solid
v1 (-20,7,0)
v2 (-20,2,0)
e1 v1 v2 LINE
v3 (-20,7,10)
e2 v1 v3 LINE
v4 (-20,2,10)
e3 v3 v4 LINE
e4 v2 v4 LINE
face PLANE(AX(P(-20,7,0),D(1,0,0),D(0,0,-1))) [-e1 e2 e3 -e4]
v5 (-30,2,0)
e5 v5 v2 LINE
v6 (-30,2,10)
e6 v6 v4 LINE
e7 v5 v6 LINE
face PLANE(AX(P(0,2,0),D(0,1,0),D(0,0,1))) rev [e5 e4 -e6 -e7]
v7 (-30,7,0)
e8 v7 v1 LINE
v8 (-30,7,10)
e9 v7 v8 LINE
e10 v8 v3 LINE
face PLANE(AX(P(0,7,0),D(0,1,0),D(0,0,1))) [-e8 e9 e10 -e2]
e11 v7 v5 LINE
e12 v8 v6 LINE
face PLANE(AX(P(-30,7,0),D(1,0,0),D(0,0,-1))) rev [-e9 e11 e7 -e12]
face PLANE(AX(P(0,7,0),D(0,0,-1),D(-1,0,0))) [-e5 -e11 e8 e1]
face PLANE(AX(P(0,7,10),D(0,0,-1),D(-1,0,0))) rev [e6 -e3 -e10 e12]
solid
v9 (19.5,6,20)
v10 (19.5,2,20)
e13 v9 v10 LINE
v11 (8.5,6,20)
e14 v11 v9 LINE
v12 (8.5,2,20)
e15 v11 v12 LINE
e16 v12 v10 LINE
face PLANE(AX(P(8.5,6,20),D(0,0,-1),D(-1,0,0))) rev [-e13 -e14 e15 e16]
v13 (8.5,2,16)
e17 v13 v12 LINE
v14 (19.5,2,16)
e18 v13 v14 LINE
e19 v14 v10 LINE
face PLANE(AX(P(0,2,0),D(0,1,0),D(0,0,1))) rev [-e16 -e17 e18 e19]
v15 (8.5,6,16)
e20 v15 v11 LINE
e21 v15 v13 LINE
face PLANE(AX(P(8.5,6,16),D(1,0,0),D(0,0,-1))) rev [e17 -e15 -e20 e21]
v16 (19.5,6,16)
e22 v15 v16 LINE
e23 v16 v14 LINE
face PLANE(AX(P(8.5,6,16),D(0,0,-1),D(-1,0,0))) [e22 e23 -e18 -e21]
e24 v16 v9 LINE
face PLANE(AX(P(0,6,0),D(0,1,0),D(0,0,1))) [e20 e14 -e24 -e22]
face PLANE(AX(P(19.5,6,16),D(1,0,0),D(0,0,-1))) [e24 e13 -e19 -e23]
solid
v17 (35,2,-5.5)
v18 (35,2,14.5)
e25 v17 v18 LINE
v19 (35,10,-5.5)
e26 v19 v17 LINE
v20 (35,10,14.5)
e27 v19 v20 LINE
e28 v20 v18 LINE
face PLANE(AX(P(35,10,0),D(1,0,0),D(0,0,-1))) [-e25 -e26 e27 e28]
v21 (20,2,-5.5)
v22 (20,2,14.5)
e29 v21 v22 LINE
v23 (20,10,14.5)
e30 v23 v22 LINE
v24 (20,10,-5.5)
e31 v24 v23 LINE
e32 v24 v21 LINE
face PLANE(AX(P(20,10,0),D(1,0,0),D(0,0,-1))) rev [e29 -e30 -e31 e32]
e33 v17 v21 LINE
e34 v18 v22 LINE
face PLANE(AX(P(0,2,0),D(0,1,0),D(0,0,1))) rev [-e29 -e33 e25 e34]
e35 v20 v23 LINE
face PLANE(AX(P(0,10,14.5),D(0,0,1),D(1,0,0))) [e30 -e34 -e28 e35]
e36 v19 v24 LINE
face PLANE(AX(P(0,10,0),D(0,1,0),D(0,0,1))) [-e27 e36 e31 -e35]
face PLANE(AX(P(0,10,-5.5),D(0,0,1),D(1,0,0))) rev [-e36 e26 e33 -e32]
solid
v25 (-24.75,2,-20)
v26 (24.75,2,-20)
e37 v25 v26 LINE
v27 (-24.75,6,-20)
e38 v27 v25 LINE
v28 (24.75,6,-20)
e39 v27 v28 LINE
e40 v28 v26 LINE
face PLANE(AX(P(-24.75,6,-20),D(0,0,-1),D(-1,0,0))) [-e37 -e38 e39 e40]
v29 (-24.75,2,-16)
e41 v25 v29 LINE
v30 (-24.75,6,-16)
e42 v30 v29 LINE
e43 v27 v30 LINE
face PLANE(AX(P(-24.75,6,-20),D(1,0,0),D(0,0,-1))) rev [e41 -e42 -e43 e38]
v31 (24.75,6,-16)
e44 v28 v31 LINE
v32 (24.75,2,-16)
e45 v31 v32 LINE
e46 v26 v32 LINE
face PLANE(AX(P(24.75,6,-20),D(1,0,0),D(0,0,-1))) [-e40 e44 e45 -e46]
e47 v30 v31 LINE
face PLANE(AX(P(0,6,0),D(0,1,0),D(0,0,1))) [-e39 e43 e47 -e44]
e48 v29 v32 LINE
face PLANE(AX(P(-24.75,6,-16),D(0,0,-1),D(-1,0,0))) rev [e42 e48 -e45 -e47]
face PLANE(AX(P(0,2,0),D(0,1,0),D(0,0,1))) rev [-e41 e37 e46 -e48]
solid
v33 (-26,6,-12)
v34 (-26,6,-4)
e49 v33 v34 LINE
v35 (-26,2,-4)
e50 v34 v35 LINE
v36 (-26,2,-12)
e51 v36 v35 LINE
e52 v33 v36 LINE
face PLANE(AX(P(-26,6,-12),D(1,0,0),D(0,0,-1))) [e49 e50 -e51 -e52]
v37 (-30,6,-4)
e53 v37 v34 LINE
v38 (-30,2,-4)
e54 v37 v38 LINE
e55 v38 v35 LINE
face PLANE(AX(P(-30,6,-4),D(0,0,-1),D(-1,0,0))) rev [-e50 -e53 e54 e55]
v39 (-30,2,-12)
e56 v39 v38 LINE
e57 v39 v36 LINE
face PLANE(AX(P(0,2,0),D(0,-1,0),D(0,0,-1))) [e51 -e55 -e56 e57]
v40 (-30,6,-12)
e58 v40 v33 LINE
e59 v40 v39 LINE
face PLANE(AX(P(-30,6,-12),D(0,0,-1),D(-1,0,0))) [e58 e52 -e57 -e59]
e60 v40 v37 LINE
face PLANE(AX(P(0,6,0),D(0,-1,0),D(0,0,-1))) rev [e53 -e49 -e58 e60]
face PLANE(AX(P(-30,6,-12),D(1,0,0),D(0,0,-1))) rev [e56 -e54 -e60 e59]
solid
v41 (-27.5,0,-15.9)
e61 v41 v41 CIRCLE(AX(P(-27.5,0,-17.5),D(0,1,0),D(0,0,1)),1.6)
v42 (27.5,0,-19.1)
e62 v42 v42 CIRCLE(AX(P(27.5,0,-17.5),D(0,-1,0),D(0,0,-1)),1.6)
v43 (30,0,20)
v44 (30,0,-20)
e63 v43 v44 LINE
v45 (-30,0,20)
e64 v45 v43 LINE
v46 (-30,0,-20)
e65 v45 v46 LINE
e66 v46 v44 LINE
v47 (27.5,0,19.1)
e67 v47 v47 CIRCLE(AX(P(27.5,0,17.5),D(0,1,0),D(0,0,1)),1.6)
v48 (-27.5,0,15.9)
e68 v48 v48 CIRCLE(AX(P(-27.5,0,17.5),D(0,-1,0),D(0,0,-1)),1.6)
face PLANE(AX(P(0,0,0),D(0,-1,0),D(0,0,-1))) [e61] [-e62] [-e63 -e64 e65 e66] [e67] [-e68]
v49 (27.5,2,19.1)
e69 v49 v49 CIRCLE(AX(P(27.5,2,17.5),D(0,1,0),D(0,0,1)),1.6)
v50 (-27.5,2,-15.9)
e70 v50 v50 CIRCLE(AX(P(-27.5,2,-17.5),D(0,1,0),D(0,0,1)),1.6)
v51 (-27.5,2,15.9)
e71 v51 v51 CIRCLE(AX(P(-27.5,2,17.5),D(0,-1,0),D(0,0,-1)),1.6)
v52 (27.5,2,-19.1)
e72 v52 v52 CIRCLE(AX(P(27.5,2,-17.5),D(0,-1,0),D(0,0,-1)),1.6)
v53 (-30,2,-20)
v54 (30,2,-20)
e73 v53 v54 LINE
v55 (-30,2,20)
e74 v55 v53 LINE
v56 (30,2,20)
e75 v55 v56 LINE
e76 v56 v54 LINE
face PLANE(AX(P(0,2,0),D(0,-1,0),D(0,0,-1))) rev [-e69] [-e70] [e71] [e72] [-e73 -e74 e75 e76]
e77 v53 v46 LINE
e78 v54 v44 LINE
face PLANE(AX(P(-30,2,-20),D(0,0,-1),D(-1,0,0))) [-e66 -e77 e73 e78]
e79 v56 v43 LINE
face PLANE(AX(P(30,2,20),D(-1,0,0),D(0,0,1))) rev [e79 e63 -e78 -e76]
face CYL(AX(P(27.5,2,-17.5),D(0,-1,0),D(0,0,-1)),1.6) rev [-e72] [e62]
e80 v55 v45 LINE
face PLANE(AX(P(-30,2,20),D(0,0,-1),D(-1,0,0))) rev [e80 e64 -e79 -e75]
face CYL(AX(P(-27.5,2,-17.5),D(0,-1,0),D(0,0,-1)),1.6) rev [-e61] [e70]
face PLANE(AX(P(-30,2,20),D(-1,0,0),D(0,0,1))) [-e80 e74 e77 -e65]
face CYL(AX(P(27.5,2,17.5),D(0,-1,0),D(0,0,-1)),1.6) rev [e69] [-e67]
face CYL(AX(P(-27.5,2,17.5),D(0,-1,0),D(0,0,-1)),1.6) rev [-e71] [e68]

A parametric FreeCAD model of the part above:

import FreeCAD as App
import Part
import Sketcher

doc = App.newDocument("Part")
body = doc.addObject("PartDesign::Body", "Body")

# Sketch on XZ plane
sketch1 = body.newObject("Sketcher::SketchObject", "Sketch")
sketch1.AttachmentSupport = (doc.getObject("XZ_Plane"), [""])
sketch1.MapMode = "FlatFace"
sketch1.addGeometry(Part.LineSegment(App.Vector(-30, -20, 0), App.Vector(-30, 20, 0)), False)
sketch1.addGeometry(Part.LineSegment(App.Vector(-30, 20, 0), App.Vector(30, 20, 0)), False)
sketch1.addGeometry(Part.LineSegment(App.Vector(30, 20, 0), App.Vector(30, -20, 0)), False)
sketch1.addGeometry(Part.LineSegment(App.Vector(30, -20, 0), App.Vector(-30, -20, 0)), False)
sketch1.addGeometry(Part.Circle(App.Vector(-27.5, 17.5, 0), App.Vector(0, 0, 1), 1.6), False)
sketch1.addGeometry(Part.Circle(App.Vector(27.5, 17.5, 0), App.Vector(0, 0, 1), 1.6), False)
sketch1.addGeometry(Part.Circle(App.Vector(-27.5, -17.5, 0), App.Vector(0, 0, 1), 1.6), False)
sketch1.addGeometry(Part.Circle(App.Vector(27.5, -17.5, 0), App.Vector(0, 0, 1), 1.6), False)
sketch1.addConstraint(Sketcher.Constraint("Coincident", 0, 2, 1, 1))
sketch1.addConstraint(Sketcher.Constraint("Coincident", 1, 2, 2, 1))
sketch1.addConstraint(Sketcher.Constraint("Coincident", 2, 2, 3, 1))
sketch1.addConstraint(Sketcher.Constraint("Coincident", 3, 2, 0, 1))
sketch1.addConstraint(Sketcher.Constraint("Vertical", 0))
sketch1.addConstraint(Sketcher.Constraint("Horizontal", 1))
sketch1.addConstraint(Sketcher.Constraint("Vertical", 2))
sketch1.addConstraint(Sketcher.Constraint("Horizontal", 3))
sketch1.addConstraint(Sketcher.Constraint("Equal", 4, 5))
sketch1.addConstraint(Sketcher.Constraint("Equal", 5, 6))
sketch1.addConstraint(Sketcher.Constraint("Equal", 6, 7))
sketch1.addConstraint(Sketcher.Constraint("Symmetric", 5, 3, 6, 3, -1, 1))
sketch1.addConstraint(Sketcher.Constraint("Symmetric", 4, 3, 7, 3, -1, 1))
sketch1.addConstraint(Sketcher.Constraint("Symmetric", 0, 2, 2, 2, -1, 1))
sketch1.addConstraint(Sketcher.Constraint("Symmetric", 4, 3, 5, 3, -2))
sketch1.addConstraint(Sketcher.Constraint("Diameter", 4, 3.2))
sketch1.addConstraint(Sketcher.Constraint("DistanceX", 1, 1, 1, 2, 60.0))
sketch1.addConstraint(Sketcher.Constraint("DistanceY", 0, 1, 0, 2, 40.0))
sketch1.addConstraint(Sketcher.Constraint("DistanceX", 4, 3, 5, 3, 55.0))
sketch1.addConstraint(Sketcher.Constraint("DistanceY", 6, 3, 4, 3, 35.0))
pad1 = body.newObject("PartDesign::Pad", "Pad")
pad1.Profile = sketch1
pad1.Length = 2
pad1.Reversed = True
body2 = doc.addObject("PartDesign::Body", "Body001")

# Sketch on XZ plane
sketch2 = body2.newObject("Sketcher::SketchObject", "Sketch001")
sketch2.AttachmentSupport = (doc.getObject("XZ_Plane001"), [""])
sketch2.MapMode = "FlatFace"
sketch2.AttachmentOffset = App.Placement(App.Vector(0, 0, -2), App.Rotation())
sketch2.addGeometry(Part.LineSegment(App.Vector(-24.75, -20, 0), App.Vector(-24.75, -16, 0)), False)
sketch2.addGeometry(Part.LineSegment(App.Vector(-24.75, -16, 0), App.Vector(24.75, -16, 0)), False)
sketch2.addGeometry(Part.LineSegment(App.Vector(24.75, -16, 0), App.Vector(24.75, -20, 0)), False)
sketch2.addGeometry(Part.LineSegment(App.Vector(24.75, -20, 0), App.Vector(-24.75, -20, 0)), False)
sketch2.addConstraint(Sketcher.Constraint("Coincident", 0, 2, 1, 1))
sketch2.addConstraint(Sketcher.Constraint("Coincident", 1, 2, 2, 1))
sketch2.addConstraint(Sketcher.Constraint("Coincident", 2, 2, 3, 1))
sketch2.addConstraint(Sketcher.Constraint("Coincident", 3, 2, 0, 1))
sketch2.addConstraint(Sketcher.Constraint("Vertical", 0))
sketch2.addConstraint(Sketcher.Constraint("Horizontal", 1))
sketch2.addConstraint(Sketcher.Constraint("Vertical", 2))
sketch2.addConstraint(Sketcher.Constraint("Horizontal", 3))
sketch2.addConstraint(Sketcher.Constraint("DistanceY", 0, 1, 0, 2, 4.0))
sketch2.addConstraint(Sketcher.Constraint("DistanceX", 1, 1, 1, 2, 49.5))
sketch2.addConstraint(Sketcher.Constraint("DistanceY", 0, 2, -1, 1, 16.0))
sketch2.addConstraint(Sketcher.Constraint("DistanceX", 0, 2, -1, 1, 24.75))
pad2 = body2.newObject("PartDesign::Pad", "Pad001")
pad2.Profile = sketch2
pad2.Length = 4
pad2.Reversed = True
body3 = doc.addObject("PartDesign::Body", "Body002")

# Sketch on XZ plane
sketch3 = body3.newObject("Sketcher::SketchObject", "Sketch002")
sketch3.AttachmentSupport = (doc.getObject("XZ_Plane002"), [""])
sketch3.MapMode = "FlatFace"
sketch3.AttachmentOffset = App.Placement(App.Vector(0, 0, -2), App.Rotation())
sketch3.addGeometry(Part.LineSegment(App.Vector(-30, -12, 0), App.Vector(-30, -4, 0)), False)
sketch3.addGeometry(Part.LineSegment(App.Vector(-30, -4, 0), App.Vector(-26, -4, 0)), False)
sketch3.addGeometry(Part.LineSegment(App.Vector(-26, -4, 0), App.Vector(-26, -12, 0)), False)
sketch3.addGeometry(Part.LineSegment(App.Vector(-26, -12, 0), App.Vector(-30, -12, 0)), False)
sketch3.addConstraint(Sketcher.Constraint("Coincident", 0, 2, 1, 1))
sketch3.addConstraint(Sketcher.Constraint("Coincident", 1, 2, 2, 1))
sketch3.addConstraint(Sketcher.Constraint("Coincident", 2, 2, 3, 1))
sketch3.addConstraint(Sketcher.Constraint("Coincident", 3, 2, 0, 1))
sketch3.addConstraint(Sketcher.Constraint("Vertical", 0))
sketch3.addConstraint(Sketcher.Constraint("Horizontal", 1))
sketch3.addConstraint(Sketcher.Constraint("Vertical", 2))
sketch3.addConstraint(Sketcher.Constraint("Horizontal", 3))
sketch3.addConstraint(Sketcher.Constraint("DistanceX", 1, 1, 1, 2, 4.0))
sketch3.addConstraint(Sketcher.Constraint("DistanceY", 0, 1, 0, 2, 8.0))
sketch3.addConstraint(Sketcher.Constraint("DistanceX", 0, 2, -1, 1, 30.0))
sketch3.addConstraint(Sketcher.Constraint("DistanceY", 0, 2, -1, 1, 4.0))
pad3 = body3.newObject("PartDesign::Pad", "Pad002")
pad3.Profile = sketch3
pad3.Length = 4
pad3.Reversed = True
body4 = doc.addObject("PartDesign::Body", "Body003")

# Sketch on XZ plane
sketch4 = body4.newObject("Sketcher::SketchObject", "Sketch003")
sketch4.AttachmentSupport = (doc.getObject("XZ_Plane003"), [""])
sketch4.MapMode = "FlatFace"
sketch4.AttachmentOffset = App.Placement(App.Vector(0, 0, -2), App.Rotation())
sketch4.addGeometry(Part.LineSegment(App.Vector(8.5, 16, 0), App.Vector(8.5, 20, 0)), False)
sketch4.addGeometry(Part.LineSegment(App.Vector(8.5, 20, 0), App.Vector(19.5, 20, 0)), False)
sketch4.addGeometry(Part.LineSegment(App.Vector(19.5, 20, 0), App.Vector(19.5, 16, 0)), False)
sketch4.addGeometry(Part.LineSegment(App.Vector(19.5, 16, 0), App.Vector(8.5, 16, 0)), False)
sketch4.addConstraint(Sketcher.Constraint("Coincident", 0, 2, 1, 1))
sketch4.addConstraint(Sketcher.Constraint("Coincident", 1, 2, 2, 1))
sketch4.addConstraint(Sketcher.Constraint("Coincident", 2, 2, 3, 1))
sketch4.addConstraint(Sketcher.Constraint("Coincident", 3, 2, 0, 1))
sketch4.addConstraint(Sketcher.Constraint("Vertical", 0))
sketch4.addConstraint(Sketcher.Constraint("Horizontal", 1))
sketch4.addConstraint(Sketcher.Constraint("Vertical", 2))
sketch4.addConstraint(Sketcher.Constraint("Horizontal", 3))
sketch4.addConstraint(Sketcher.Constraint("DistanceX", 1, 1, 1, 2, 11.0))
sketch4.addConstraint(Sketcher.Constraint("DistanceY", 0, 1, 0, 2, 4.0))
sketch4.addConstraint(Sketcher.Constraint("DistanceY", -1, 1, 0, 2, 20.0))
sketch4.addConstraint(Sketcher.Constraint("DistanceX", -1, 1, 0, 2, 8.5))
pad4 = body4.newObject("PartDesign::Pad", "Pad003")
pad4.Profile = sketch4
pad4.Length = 4
pad4.Reversed = True
body5 = doc.addObject("PartDesign::Body", "Body004")

# Sketch on XZ plane
sketch5 = body5.newObject("Sketcher::SketchObject", "Sketch004")
sketch5.AttachmentSupport = (doc.getObject("XZ_Plane004"), [""])
sketch5.MapMode = "FlatFace"
sketch5.AttachmentOffset = App.Placement(App.Vector(0, 0, -2), App.Rotation())
sketch5.addGeometry(Part.LineSegment(App.Vector(-30, 0, 0), App.Vector(-30, 10, 0)), False)
sketch5.addGeometry(Part.LineSegment(App.Vector(-30, 10, 0), App.Vector(-20, 10, 0)), False)
sketch5.addGeometry(Part.LineSegment(App.Vector(-20, 10, 0), App.Vector(-20, 0, 0)), False)
sketch5.addGeometry(Part.LineSegment(App.Vector(-20, 0, 0), App.Vector(-30, 0, 0)), False)
sketch5.addConstraint(Sketcher.Constraint("Coincident", 0, 2, 1, 1))
sketch5.addConstraint(Sketcher.Constraint("Coincident", 1, 2, 2, 1))
sketch5.addConstraint(Sketcher.Constraint("Coincident", 2, 2, 3, 1))
sketch5.addConstraint(Sketcher.Constraint("Coincident", 3, 2, 0, 1))
sketch5.addConstraint(Sketcher.Constraint("Vertical", 0))
sketch5.addConstraint(Sketcher.Constraint("Horizontal", 1))
sketch5.addConstraint(Sketcher.Constraint("Vertical", 2))
sketch5.addConstraint(Sketcher.Constraint("Horizontal", 3))
sketch5.addConstraint(Sketcher.Constraint("PointOnObject", 2, 2, -1))
sketch5.addConstraint(Sketcher.Constraint("Equal", 3, 0))
sketch5.addConstraint(Sketcher.Constraint("DistanceX", 1, 1, 1, 2, 10.0))
sketch5.addConstraint(Sketcher.Constraint("DistanceX", 0, 2, -1, 1, 30.0))
pad5 = body5.newObject("PartDesign::Pad", "Pad004")
pad5.Profile = sketch5
pad5.Length = 5
pad5.Reversed = True
body6 = doc.addObject("PartDesign::Body", "Body005")

# Sketch on XZ plane
sketch6 = body6.newObject("Sketcher::SketchObject", "Sketch005")
sketch6.AttachmentSupport = (doc.getObject("XZ_Plane005"), [""])
sketch6.MapMode = "FlatFace"
sketch6.AttachmentOffset = App.Placement(App.Vector(0, 0, -2), App.Rotation())
sketch6.addGeometry(Part.LineSegment(App.Vector(35, 14.5, 0), App.Vector(35, -5.5, 0)), False)
sketch6.addGeometry(Part.LineSegment(App.Vector(35, -5.5, 0), App.Vector(20, -5.5, 0)), False)
sketch6.addGeometry(Part.LineSegment(App.Vector(20, -5.5, 0), App.Vector(20, 14.5, 0)), False)
sketch6.addGeometry(Part.LineSegment(App.Vector(20, 14.5, 0), App.Vector(35, 14.5, 0)), False)
sketch6.addConstraint(Sketcher.Constraint("Coincident", 0, 2, 1, 1))
sketch6.addConstraint(Sketcher.Constraint("Coincident", 1, 2, 2, 1))
sketch6.addConstraint(Sketcher.Constraint("Coincident", 2, 2, 3, 1))
sketch6.addConstraint(Sketcher.Constraint("Coincident", 3, 2, 0, 1))
sketch6.addConstraint(Sketcher.Constraint("Vertical", 0))
sketch6.addConstraint(Sketcher.Constraint("Horizontal", 1))
sketch6.addConstraint(Sketcher.Constraint("Vertical", 2))
sketch6.addConstraint(Sketcher.Constraint("Horizontal", 3))
sketch6.addConstraint(Sketcher.Constraint("DistanceX", 1, 2, 1, 1, 15.0))
sketch6.addConstraint(Sketcher.Constraint("DistanceY", 0, 2, 0, 1, 20.0))
sketch6.addConstraint(Sketcher.Constraint("DistanceX", -1, 1, 0, 2, 35.0))
sketch6.addConstraint(Sketcher.Constraint("DistanceY", 0, 2, -1, 1, 5.5))
pad6 = body6.newObject("PartDesign::Pad", "Pad005")
pad6.Profile = sketch6
pad6.Length = 8
pad6.Reversed = True

doc.recompute()
